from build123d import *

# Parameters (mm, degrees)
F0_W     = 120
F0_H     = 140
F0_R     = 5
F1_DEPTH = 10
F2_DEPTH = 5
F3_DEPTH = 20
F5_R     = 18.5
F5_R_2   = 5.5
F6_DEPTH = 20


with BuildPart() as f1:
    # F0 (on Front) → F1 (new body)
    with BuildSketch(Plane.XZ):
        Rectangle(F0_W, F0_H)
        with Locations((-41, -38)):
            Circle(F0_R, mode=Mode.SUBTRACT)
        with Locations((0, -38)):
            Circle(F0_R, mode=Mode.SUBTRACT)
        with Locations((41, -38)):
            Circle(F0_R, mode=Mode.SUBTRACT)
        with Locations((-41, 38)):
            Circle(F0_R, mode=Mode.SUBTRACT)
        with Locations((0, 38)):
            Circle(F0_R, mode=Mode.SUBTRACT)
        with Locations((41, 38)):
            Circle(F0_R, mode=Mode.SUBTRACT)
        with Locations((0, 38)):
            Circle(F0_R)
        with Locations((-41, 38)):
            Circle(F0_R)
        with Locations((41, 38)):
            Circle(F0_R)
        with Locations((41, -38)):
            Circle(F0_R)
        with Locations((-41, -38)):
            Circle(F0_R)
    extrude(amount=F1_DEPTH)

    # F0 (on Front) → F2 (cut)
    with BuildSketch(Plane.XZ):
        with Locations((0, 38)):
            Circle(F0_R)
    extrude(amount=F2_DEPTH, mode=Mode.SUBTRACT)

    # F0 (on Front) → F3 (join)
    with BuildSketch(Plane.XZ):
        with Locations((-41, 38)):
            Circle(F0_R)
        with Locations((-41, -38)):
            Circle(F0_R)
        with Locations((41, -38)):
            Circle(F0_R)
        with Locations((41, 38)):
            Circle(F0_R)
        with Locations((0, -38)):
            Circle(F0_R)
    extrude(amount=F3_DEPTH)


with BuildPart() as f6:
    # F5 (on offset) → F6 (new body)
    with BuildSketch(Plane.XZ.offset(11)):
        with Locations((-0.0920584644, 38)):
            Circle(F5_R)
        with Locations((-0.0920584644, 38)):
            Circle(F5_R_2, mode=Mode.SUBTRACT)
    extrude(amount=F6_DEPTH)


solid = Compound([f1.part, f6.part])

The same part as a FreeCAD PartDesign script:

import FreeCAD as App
import Part
import Sketcher

doc = App.newDocument("Part")
body = doc.addObject("PartDesign::Body", "Body")

# Sketch on XZ plane
sketch1 = body.newObject("Sketcher::SketchObject", "Sketch")
sketch1.AttachmentSupport = (doc.getObject("XZ_Plane"), [""])
sketch1.MapMode = "FlatFace"
sketch1.addGeometry(Part.LineSegment(App.Vector(-60, 70, 0), App.Vector(-60, -70, 0)), False)
sketch1.addGeometry(Part.LineSegment(App.Vector(-60, -70, 0), App.Vector(60, -70, 0)), False)
sketch1.addGeometry(Part.LineSegment(App.Vector(60, -70, 0), App.Vector(60, 70, 0)), False)
sketch1.addGeometry(Part.LineSegment(App.Vector(60, 70, 0), App.Vector(-60, 70, 0)), False)
sketch1.addGeometry(Part.Circle(App.Vector(0, -38, 0), App.Vector(0, 0, 1), 5), False)
sketch1.addConstraint(Sketcher.Constraint("Coincident", 0, 2, 1, 1))
sketch1.addConstraint(Sketcher.Constraint("Coincident", 1, 2, 2, 1))
sketch1.addConstraint(Sketcher.Constraint("Coincident", 2, 2, 3, 1))
sketch1.addConstraint(Sketcher.Constraint("Coincident", 3, 2, 0, 1))
sketch1.addConstraint(Sketcher.Constraint("Vertical", 0))
sketch1.addConstraint(Sketcher.Constraint("Horizontal", 1))
sketch1.addConstraint(Sketcher.Constraint("Vertical", 2))
sketch1.addConstraint(Sketcher.Constraint("Horizontal", 3))
sketch1.addConstraint(Sketcher.Constraint("Symmetric", 0, 2, 2, 2, -1, 1))
sketch1.addConstraint(Sketcher.Constraint("PointOnObject", 4, 3, -2))
sketch1.addConstraint(Sketcher.Constraint("Diameter", 4, 10.0))
sketch1.addConstraint(Sketcher.Constraint("DistanceX", 1, 1, 1, 2, 120.0))
sketch1.addConstraint(Sketcher.Constraint("DistanceY", 0, 2, 0, 1, 140.0))
sketch1.addConstraint(Sketcher.Constraint("DistanceY", 4, 3, -1, 1, 38.0))
pad1 = body.newObject("PartDesign::Pad", "Pad")
pad1.Profile = sketch1
pad1.Length = 10

# Sketch on XZ plane
sketch2 = body.newObject("Sketcher::SketchObject", "Sketch001")
sketch2.AttachmentSupport = (doc.getObject("XZ_Plane"), [""])
sketch2.MapMode = "FlatFace"
sketch2.addGeometry(Part.Circle(App.Vector(0, 38, 0), App.Vector(0, 0, 1), 5), False)
sketch2.addConstraint(Sketcher.Constraint("PointOnObject", 0, 3, -2))
sketch2.addConstraint(Sketcher.Constraint("Diameter", 0, 10.0))
sketch2.addConstraint(Sketcher.Constraint("DistanceY", -1, 1, 0, 3, 38.0))
pocket1 = body.newObject("PartDesign::Pocket", "Pocket")
pocket1.Profile = sketch2
pocket1.Length = 5
pocket1.Reversed = True

# Sketch on XZ plane
sketch3 = body.newObject("Sketcher::SketchObject", "Sketch002")
sketch3.AttachmentSupport = (doc.getObject("XZ_Plane"), [""])
sketch3.MapMode = "FlatFace"
sketch3.addGeometry(Part.Circle(App.Vector(-41, 38, 0), App.Vector(0, 0, 1), 5), False)
sketch3.addGeometry(Part.Circle(App.Vector(-41, -38, 0), App.Vector(0, 0, 1), 5), False)
sketch3.addGeometry(Part.Circle(App.Vector(41, -38, 0), App.Vector(0, 0, 1), 5), False)
sketch3.addGeometry(Part.Circle(App.Vector(41, 38, 0), App.Vector(0, 0, 1), 5), False)
sketch3.addGeometry(Part.Circle(App.Vector(0, -38, 0), App.Vector(0, 0, 1), 5), False)
sketch3.addConstraint(Sketcher.Constraint("Equal", 0, 1))
sketch3.addConstraint(Sketcher.Constraint("Equal", 1, 2))
sketch3.addConstraint(Sketcher.Constraint("Equal", 2, 3))
sketch3.addConstraint(Sketcher.Constraint("Equal", 3, 4))
sketch3.addConstraint(Sketcher.Constraint("Symmetric", 0, 3, 2, 3, -1, 1))
sketch3.addConstraint(Sketcher.Constraint("Symmetric", 1, 3, 3, 3, -1, 1))
sketch3.addConstraint(Sketcher.Constraint("Symmetric", 1, 3, 2, 3, -2))
sketch3.addConstraint(Sketcher.Constraint("PointOnObject", 4, 3, -2))
sketch3.addConstraint(Sketcher.Constraint("Horizontal", 2, 3, 4, 3))
sketch3.addConstraint(Sketcher.Constraint("Diameter", 0, 10.0))
sketch3.addConstraint(Sketcher.Constraint("DistanceX", 0, 3, -1, 1, 41.0))
sketch3.addConstraint(Sketcher.Constraint("DistanceY", -1, 1, 0, 3, 38.0))
pad2 = body.newObject("PartDesign::Pad", "Pad001")
pad2.Profile = sketch3
pad2.Length = 20
body2 = doc.addObject("PartDesign::Body", "Body001")

# Sketch on XZ plane
sketch4 = body2.newObject("Sketcher::SketchObject", "Sketch003")
sketch4.AttachmentSupport = (doc.getObject("XZ_Plane001"), [""])
sketch4.MapMode = "FlatFace"
sketch4.AttachmentOffset = App.Placement(App.Vector(0, 0, 11), App.Rotation())
sketch4.addGeometry(Part.Circle(App.Vector(0, 38, 0), App.Vector(0, 0, 1), 18), False)
sketch4.addGeometry(Part.Circle(App.Vector(0, 38, 0), App.Vector(0, 0, 1), 6), False)
sketch4.addConstraint(Sketcher.Constraint("Coincident", 1, 3, 0, 3))
sketch4.addConstraint(Sketcher.Constraint("Diameter", 0, 37.0))
sketch4.addConstraint(Sketcher.Constraint("Diameter", 1, 11.0))
sketch4.addConstraint(Sketcher.Constraint("DistanceY", -1, 1, 0, 3, 38.0))
sketch4.addConstraint(Sketcher.Constraint("DistanceX", 0, 3, -1, 1, 0.092058))
pad3 = body2.newObject("PartDesign::Pad", "Pad002")
pad3.Profile = sketch4
pad3.Length = 20

doc.recompute()
